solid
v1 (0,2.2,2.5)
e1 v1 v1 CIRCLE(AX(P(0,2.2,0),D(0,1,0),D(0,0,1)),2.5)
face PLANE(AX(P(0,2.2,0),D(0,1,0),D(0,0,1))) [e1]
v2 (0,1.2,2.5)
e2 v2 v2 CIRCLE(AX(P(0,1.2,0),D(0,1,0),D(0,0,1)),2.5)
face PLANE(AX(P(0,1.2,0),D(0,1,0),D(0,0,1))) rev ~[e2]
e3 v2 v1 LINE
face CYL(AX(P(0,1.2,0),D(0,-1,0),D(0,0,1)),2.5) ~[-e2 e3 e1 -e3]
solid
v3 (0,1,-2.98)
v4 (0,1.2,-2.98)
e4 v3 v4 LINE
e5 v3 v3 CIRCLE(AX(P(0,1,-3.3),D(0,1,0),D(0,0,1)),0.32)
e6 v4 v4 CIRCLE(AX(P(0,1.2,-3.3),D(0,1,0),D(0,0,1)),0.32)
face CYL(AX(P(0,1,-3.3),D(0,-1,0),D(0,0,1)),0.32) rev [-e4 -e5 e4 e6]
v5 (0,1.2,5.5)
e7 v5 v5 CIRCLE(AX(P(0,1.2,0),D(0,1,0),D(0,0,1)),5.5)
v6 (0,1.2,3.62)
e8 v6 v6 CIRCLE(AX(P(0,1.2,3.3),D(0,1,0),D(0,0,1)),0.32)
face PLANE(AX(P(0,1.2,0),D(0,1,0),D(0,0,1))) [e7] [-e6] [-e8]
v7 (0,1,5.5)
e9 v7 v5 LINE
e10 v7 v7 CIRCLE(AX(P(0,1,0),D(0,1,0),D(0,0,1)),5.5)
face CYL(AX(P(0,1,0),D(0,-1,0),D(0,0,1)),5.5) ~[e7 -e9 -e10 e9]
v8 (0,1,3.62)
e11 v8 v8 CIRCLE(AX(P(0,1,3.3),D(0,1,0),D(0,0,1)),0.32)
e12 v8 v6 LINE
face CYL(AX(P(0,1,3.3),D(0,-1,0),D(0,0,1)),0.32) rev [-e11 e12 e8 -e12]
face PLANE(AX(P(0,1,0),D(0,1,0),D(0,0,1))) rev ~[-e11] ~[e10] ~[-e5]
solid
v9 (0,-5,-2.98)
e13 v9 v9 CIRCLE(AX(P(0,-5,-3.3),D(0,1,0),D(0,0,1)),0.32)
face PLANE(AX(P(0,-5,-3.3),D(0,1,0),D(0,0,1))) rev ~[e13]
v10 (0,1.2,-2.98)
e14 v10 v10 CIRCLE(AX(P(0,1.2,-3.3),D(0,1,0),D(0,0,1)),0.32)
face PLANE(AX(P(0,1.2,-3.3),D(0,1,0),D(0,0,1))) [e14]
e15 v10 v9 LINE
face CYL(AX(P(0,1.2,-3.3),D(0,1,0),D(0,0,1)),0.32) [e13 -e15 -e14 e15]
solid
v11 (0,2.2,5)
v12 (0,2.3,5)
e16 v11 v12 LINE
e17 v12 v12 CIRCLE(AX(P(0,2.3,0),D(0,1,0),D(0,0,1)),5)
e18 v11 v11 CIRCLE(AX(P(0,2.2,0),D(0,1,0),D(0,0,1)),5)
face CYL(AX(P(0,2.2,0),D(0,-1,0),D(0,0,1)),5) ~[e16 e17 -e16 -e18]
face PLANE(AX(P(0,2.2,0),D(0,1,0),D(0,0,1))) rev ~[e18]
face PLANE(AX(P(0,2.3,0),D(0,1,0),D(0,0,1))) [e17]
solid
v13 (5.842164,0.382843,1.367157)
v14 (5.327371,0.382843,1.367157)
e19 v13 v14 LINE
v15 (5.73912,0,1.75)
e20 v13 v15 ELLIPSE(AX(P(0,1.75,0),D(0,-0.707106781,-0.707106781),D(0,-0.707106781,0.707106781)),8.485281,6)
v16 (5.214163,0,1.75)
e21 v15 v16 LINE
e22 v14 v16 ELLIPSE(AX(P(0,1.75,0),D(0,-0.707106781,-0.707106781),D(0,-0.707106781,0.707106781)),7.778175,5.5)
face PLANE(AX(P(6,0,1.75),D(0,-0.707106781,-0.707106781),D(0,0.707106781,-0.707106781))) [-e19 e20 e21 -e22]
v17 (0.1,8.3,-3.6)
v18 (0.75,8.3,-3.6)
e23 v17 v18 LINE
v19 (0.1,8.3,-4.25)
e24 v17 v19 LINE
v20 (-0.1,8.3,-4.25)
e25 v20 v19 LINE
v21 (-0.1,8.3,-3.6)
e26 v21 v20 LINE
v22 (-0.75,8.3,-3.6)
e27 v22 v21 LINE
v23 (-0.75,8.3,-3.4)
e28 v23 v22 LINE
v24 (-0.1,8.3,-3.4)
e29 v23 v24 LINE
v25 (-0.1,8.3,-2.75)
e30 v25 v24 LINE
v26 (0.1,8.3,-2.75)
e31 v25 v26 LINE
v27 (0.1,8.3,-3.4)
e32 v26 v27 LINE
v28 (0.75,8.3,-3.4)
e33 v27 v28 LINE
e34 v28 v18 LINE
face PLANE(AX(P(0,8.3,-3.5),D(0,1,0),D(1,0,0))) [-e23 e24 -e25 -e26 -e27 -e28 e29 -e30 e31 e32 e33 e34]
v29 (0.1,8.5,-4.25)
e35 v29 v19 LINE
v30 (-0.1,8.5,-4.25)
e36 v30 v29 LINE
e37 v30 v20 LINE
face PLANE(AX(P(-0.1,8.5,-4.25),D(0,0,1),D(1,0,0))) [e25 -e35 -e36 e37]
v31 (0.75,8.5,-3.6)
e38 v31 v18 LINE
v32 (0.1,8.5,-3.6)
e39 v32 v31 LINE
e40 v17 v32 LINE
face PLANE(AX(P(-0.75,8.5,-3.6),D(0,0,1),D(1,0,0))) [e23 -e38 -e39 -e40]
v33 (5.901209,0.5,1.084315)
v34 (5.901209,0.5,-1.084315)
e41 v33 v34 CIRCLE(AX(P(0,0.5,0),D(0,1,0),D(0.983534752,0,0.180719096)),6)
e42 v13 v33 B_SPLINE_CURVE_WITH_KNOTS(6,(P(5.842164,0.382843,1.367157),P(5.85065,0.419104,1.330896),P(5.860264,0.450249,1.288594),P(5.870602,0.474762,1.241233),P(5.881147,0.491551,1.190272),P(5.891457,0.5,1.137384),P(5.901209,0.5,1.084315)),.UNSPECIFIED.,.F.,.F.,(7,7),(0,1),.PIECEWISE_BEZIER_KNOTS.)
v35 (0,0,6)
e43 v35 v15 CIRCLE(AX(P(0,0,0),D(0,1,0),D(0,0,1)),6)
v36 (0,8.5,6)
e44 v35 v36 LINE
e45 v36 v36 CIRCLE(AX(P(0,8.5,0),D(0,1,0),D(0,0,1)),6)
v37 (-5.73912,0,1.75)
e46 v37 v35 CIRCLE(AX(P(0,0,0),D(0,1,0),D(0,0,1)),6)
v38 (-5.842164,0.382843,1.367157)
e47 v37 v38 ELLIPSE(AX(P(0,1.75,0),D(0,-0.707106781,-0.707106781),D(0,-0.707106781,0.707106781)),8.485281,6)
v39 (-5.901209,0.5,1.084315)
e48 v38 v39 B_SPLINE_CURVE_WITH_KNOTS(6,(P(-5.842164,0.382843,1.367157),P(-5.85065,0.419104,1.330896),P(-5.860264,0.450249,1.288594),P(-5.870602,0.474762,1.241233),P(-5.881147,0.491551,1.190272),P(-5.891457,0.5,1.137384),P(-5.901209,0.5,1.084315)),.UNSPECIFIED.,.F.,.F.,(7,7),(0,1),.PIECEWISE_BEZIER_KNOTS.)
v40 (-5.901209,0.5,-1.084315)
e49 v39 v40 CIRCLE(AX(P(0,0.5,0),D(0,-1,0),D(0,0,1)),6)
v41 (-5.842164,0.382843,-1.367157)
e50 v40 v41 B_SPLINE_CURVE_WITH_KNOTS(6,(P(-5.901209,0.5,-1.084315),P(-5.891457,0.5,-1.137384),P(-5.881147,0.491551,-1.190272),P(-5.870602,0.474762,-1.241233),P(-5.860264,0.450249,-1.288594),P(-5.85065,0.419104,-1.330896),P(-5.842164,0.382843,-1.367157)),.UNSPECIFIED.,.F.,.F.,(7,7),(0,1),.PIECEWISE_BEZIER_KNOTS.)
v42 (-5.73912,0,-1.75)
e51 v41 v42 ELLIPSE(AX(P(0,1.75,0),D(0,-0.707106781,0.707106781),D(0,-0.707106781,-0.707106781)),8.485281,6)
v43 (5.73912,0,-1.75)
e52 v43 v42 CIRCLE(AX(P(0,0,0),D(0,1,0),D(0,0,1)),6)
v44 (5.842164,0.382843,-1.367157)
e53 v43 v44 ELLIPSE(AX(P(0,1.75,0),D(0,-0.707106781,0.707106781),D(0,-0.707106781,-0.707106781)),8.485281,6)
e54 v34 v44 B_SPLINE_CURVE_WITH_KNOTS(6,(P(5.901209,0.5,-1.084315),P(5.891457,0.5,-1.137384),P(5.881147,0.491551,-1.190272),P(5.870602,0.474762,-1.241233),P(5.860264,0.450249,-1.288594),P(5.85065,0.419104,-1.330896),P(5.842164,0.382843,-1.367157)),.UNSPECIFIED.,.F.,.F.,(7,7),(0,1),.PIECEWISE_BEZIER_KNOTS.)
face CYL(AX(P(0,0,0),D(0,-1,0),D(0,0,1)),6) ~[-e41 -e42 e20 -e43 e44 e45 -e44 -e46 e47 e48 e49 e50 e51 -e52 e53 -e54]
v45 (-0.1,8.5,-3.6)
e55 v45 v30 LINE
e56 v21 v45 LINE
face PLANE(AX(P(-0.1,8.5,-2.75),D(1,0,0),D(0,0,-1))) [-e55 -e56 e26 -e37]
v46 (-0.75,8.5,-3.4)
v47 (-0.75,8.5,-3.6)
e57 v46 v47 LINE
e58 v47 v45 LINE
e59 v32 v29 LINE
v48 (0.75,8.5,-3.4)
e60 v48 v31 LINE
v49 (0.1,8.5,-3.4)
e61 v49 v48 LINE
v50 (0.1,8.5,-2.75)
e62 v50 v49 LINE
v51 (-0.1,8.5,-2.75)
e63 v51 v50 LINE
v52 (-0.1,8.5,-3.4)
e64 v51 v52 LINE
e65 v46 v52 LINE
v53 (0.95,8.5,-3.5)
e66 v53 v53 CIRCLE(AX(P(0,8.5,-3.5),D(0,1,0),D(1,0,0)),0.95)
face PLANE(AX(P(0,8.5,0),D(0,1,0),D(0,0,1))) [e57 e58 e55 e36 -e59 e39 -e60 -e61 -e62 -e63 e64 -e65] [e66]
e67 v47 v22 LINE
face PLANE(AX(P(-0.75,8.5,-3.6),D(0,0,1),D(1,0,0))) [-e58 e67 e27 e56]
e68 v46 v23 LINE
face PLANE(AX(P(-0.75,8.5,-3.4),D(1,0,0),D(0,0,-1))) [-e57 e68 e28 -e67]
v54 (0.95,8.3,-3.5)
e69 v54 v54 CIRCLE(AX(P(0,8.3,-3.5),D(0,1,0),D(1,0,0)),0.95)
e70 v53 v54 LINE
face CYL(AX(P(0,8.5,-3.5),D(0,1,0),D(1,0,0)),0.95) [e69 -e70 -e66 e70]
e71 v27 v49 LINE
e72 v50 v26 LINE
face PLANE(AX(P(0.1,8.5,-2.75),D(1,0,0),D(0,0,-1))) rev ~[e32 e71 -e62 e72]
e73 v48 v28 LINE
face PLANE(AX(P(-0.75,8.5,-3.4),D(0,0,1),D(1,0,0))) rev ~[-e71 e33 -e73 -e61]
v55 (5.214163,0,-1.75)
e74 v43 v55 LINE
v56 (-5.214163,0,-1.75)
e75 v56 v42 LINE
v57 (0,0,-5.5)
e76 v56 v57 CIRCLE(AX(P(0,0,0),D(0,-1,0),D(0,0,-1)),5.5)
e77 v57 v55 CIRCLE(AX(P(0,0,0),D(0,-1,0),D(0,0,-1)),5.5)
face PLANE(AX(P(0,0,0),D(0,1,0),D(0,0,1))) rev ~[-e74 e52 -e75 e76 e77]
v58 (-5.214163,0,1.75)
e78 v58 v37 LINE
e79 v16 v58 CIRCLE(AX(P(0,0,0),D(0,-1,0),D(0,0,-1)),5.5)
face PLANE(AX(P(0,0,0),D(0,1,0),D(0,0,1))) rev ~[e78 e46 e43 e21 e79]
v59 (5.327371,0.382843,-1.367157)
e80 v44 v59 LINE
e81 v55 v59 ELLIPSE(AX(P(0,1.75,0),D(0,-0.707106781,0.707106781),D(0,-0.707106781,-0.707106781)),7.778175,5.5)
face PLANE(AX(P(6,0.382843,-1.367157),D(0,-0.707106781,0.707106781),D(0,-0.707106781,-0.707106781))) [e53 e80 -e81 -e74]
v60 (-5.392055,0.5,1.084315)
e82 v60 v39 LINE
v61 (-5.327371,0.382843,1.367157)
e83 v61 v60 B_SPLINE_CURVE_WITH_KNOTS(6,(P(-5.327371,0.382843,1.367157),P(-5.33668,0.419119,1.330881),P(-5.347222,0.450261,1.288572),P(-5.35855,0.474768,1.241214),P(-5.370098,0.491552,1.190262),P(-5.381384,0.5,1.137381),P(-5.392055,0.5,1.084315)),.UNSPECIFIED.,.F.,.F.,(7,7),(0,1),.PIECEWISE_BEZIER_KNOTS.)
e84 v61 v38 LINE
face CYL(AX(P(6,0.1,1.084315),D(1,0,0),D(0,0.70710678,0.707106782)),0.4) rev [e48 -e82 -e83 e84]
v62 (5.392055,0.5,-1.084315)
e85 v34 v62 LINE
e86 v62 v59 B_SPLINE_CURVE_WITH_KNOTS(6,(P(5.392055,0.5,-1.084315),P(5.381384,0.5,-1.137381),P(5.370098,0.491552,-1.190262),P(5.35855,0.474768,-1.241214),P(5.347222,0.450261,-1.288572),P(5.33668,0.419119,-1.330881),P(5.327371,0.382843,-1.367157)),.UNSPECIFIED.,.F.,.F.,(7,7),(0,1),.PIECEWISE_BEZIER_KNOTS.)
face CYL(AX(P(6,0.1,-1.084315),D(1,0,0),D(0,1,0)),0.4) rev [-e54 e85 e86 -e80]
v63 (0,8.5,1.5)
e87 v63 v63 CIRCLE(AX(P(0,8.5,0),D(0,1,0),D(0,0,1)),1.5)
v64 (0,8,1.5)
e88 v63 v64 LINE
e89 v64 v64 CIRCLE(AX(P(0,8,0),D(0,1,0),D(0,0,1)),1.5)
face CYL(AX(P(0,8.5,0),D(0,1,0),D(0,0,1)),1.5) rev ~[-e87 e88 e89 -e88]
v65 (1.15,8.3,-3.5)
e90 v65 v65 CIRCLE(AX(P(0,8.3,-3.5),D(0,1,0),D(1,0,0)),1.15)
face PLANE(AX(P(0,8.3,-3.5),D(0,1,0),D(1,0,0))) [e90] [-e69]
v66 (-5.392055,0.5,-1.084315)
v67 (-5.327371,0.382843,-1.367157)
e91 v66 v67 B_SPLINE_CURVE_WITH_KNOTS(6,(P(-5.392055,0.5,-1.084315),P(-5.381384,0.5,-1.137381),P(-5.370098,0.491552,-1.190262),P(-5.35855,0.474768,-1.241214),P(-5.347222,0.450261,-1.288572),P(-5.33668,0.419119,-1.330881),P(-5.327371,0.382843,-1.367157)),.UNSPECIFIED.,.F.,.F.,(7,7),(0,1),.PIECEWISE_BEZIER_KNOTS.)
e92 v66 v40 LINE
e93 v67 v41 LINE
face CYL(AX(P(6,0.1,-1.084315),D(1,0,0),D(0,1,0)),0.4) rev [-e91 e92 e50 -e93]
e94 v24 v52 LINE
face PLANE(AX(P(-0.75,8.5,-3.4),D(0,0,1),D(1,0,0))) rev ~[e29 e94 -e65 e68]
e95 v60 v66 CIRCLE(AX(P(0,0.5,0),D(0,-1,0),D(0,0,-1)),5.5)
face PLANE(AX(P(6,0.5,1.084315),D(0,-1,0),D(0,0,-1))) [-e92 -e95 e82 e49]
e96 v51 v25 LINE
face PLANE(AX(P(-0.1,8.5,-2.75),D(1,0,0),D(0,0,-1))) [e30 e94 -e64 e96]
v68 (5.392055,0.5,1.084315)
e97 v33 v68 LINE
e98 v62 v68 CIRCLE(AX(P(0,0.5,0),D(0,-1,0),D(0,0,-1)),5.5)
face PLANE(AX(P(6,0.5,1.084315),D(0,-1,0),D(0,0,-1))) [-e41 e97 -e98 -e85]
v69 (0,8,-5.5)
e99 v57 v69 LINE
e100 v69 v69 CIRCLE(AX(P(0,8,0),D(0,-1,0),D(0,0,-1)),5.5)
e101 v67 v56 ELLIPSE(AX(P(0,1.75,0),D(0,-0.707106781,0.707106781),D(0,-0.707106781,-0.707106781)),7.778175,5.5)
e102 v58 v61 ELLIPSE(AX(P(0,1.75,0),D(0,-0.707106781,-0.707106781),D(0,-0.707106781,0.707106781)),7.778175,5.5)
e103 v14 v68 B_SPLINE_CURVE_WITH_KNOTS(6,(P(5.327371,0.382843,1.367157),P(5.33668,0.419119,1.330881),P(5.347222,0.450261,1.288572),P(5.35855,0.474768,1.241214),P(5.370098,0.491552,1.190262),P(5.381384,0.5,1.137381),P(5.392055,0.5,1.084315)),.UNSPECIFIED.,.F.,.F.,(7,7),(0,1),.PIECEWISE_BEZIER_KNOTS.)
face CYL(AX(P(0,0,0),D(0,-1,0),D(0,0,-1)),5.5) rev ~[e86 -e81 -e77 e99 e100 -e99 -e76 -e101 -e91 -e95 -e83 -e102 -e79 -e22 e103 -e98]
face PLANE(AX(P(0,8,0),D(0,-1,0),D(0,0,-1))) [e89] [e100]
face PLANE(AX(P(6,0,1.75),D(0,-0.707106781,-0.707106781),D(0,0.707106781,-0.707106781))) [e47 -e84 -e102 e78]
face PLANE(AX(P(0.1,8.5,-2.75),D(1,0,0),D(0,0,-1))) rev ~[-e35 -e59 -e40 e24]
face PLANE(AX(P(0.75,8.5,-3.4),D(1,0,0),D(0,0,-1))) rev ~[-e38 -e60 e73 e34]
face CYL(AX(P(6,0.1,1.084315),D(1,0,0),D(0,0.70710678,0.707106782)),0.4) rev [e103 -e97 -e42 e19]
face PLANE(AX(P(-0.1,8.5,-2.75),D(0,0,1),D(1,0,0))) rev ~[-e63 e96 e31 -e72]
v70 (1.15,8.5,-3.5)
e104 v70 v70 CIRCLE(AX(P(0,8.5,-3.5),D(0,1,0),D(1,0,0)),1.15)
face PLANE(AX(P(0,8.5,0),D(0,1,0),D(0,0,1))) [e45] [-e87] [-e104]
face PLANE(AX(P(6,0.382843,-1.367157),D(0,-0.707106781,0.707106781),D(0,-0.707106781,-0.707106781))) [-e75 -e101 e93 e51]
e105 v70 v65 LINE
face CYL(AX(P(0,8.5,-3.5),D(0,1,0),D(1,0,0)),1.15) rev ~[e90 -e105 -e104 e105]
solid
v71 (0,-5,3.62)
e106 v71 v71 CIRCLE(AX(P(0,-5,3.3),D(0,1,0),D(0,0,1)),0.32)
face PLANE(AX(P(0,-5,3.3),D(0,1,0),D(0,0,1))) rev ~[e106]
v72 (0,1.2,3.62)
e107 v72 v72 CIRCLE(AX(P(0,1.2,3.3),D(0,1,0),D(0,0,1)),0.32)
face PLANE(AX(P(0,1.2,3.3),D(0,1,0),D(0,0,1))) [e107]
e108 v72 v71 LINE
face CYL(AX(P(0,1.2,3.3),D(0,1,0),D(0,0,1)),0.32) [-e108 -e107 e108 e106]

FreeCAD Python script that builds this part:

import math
import FreeCAD as App
import Part
import Sketcher

V = App.Vector
Q = App.Units.Quantity


def add_polygon(sketch, points):
    """Adds a closed chain of lines whose ends are joined by coincident constraints."""
    first, n = sketch.GeometryCount, len(points)
    for a, b in zip(points, points[1:] + points[:1]):
        sketch.addGeometry(Part.LineSegment(App.Vector(*a, 0), App.Vector(*b, 0)), False)
    for i in range(n):
        sketch.addConstraint(Sketcher.Constraint("Coincident", first + i, 2, first + (i + 1) % n, 1))

doc = App.newDocument("Part")
body = doc.addObject("PartDesign::Body", "Body")

# Sketch on XZ plane
sketch1 = doc.addObject("Sketcher::SketchObject", "Sketch")
body.addObject(sketch1)
sketch1.AttachmentSupport = (doc.XZ_Plane, [""])
sketch1.MapMode = "FlatFace"
sketch1.addGeometry(Part.Circle(V(0, 0, 0), V(0, 0, 1), 6), False)
sketch1.addConstraint([
    Sketcher.Constraint("Coincident", 0, 3, -1, 1),
    Sketcher.Constraint("Diameter", 0, Q("12 mm")),
])
pad1 = doc.addObject("PartDesign::Pad", "Pad")
body.addObject(pad1)
pad1.Profile = sketch1
pad1.Length = 8.5
pad1.Reversed = True

# Sketch on XZ plane
sketch2 = doc.addObject("Sketcher::SketchObject", "Sketch001")
body.addObject(sketch2)
sketch2.AttachmentSupport = (doc.XZ_Plane, [""])
sketch2.MapMode = "FlatFace"
sketch2.addGeometry(Part.Circle(V(0, 0, 0), V(0, 0, 1), 6), False)
sketch2.addConstraint([
    Sketcher.Constraint("Coincident", 0, 3, -1, 1),
    Sketcher.Constraint("Diameter", 0, Q("11 mm")),
])
pocket1 = doc.addObject("PartDesign::Pocket", "Pocket")
body.addObject(pocket1)
pocket1.Profile = sketch2
pocket1.Length = 8

# Sketch on XZ plane
sketch3 = doc.addObject("Sketcher::SketchObject", "Sketch002")
body.addObject(sketch3)
sketch3.AttachmentSupport = (doc.XZ_Plane, [""])
sketch3.MapMode = "FlatFace"
sketch3.AttachmentOffset = App.Placement(V(0, 0, -8.5), App.Rotation())
sketch3.addGeometry(Part.Circle(V(0, 0, 0), V(0, 0, 1), 1.5), False)
sketch3.addConstraint([
    Sketcher.Constraint("Coincident", 0, 3, -1, 1),
    Sketcher.Constraint("Diameter", 0, Q("3 mm")),
])
pocket2 = doc.addObject("PartDesign::Pocket", "Pocket001")
body.addObject(pocket2)
pocket2.Profile = sketch3
pocket2.Type = "UpToFirst"
pocket2.Reversed = True

# Sketch on XZ plane
sketch4 = doc.addObject("Sketcher::SketchObject", "Sketch003")
body.addObject(sketch4)
sketch4.AttachmentSupport = (doc.XZ_Plane, [""])
sketch4.MapMode = "FlatFace"
sketch4.AttachmentOffset = App.Placement(V(0, 0, -8.5), App.Rotation())
sketch4.addGeometry(Part.Circle(V(0, -3.5, 0), V(0, 0, 1), 1.15), False)  # 0
sketch4.addGeometry(Part.Circle(V(0, -3.5, 0), V(0, 0, 1), 0.95), False)  # 1
add_polygon(sketch4, [(-0.75, -3.6), (-0.75, -3.4), (-0.1, -3.4), (-0.1, -2.75), (0.1, -2.75), (0.1, -3.4), (0.75, -3.4), (0.75, -3.6), (0.1, -3.6), (0.1, -4.25), (-0.1, -4.25), (-0.1, -3.6)])  # lines 2-13
sketch4.addConstraint([
    Sketcher.Constraint("Vertical", 2),
    Sketcher.Constraint("Horizontal", 3),
    Sketcher.Constraint("Vertical", 4),
    Sketcher.Constraint("Horizontal", 5),
    Sketcher.Constraint("Vertical", 6),
    Sketcher.Constraint("Horizontal", 7),
    Sketcher.Constraint("Vertical", 8),
    Sketcher.Constraint("Horizontal", 9),
    Sketcher.Constraint("Vertical", 10),
    Sketcher.Constraint("Horizontal", 11),
    Sketcher.Constraint("Vertical", 12),
    Sketcher.Constraint("Horizontal", 13),
    Sketcher.Constraint("Coincident", 1, 3, 0, 3),
    Sketcher.Constraint("Symmetric", 3, 2, 6, 2, -2),
    Sketcher.Constraint("Symmetric", 9, 2, 12, 2, -2),
    Sketcher.Constraint("PointOnObject", 0, 3, -2),
    Sketcher.Constraint("Vertical", 6, 2, 9, 2),
    Sketcher.Constraint("Equal", 3, 7),
    Sketcher.Constraint("Equal", 11, 2),
    Sketcher.Constraint("Equal", 13, 4),
    Sketcher.Constraint("Equal", 6, 10),
    Sketcher.Constraint("Diameter", 0, Q("2.3 mm")),
    Sketcher.Constraint("Diameter", 1, Q("1.9 mm")),
    Sketcher.Constraint("DistanceX", 5, 1, 5, 2, Q("0.2 mm")),
    Sketcher.Constraint("DistanceX", 3, 1, 3, 2, Q("0.65 mm")),
    Sketcher.Constraint("DistanceY", 0, 3, -1, 1, Q("3.5 mm")),
    Sketcher.Constraint("DistanceY", 2, 2, -1, 1, Q("3.4 mm")),
])
pocket3 = doc.addObject("PartDesign::Pocket", "Pocket002")
body.addObject(pocket3)
pocket3.Profile = sketch4
pocket3.Length = 0.2
pocket3.Reversed = True

# Sketch on YZ plane
sketch5 = doc.addObject("Sketcher::SketchObject", "Sketch004")
body.addObject(sketch5)
sketch5.AttachmentSupport = (doc.YZ_Plane, [""])
sketch5.MapMode = "FlatFace"
sketch5.AttachmentOffset = App.Placement(V(0, 0, 6), App.Rotation())
sketch5.addGeometry([
    Part.LineSegment(V(0.5, -1.08, 0), V(0.5, 1.08, 0)),  # 0
    Part.ArcOfCircle(Part.Circle(V(0.1, 1.08, 0), V(0, 0, 1), 0.4), math.radians(0), math.radians(45)),  # 1
    Part.LineSegment(V(0.38, 1.37, 0), V(0, 1.75, 0)),  # 2
    Part.LineSegment(V(0, 1.75, 0), V(0, -1.75, 0)),  # 3
    Part.LineSegment(V(0, -1.75, 0), V(0.38, -1.37, 0)),  # 4
    Part.ArcOfCircle(Part.Circle(V(0.1, -1.08, 0), V(0, 0, 1), 0.4), math.radians(-45), math.radians(0)),  # 5
], False)
sketch5.addConstraint([
    Sketcher.Constraint("Tangent", 0, 2, 1, 1),
    Sketcher.Constraint("Tangent", 1, 2, 2, 1),
    Sketcher.Constraint("Coincident", 2, 2, 3, 1),
    Sketcher.Constraint("Coincident", 3, 2, 4, 1),
    Sketcher.Constraint("Tangent", 4, 2, 5, 1),
    Sketcher.Constraint("Tangent", 5, 2, 0, 1),
    Sketcher.Constraint("Vertical", 0),
    Sketcher.Constraint("Vertical", 3),
    Sketcher.Constraint("Equal", 1, 5),
    Sketcher.Constraint("Symmetric", 2, 2, 3, 2, -1, 1),
    Sketcher.Constraint("Perpendicular", 2, 4),
    Sketcher.Constraint("Vertical", 1, 2, 4, 2),
    Sketcher.Constraint("Radius", 1, Q("0.4 mm")),
    Sketcher.Constraint("DistanceY", 3, 2, 3, 1, Q("3.5 mm")),
    Sketcher.Constraint("DistanceX", -1, 1, 1, 3, Q("0.1 mm")),
])
pocket4 = doc.addObject("PartDesign::Pocket", "Pocket003")
body.addObject(pocket4)
pocket4.Profile = sketch5
pocket4.Type = "ThroughAll"
body2 = doc.addObject("PartDesign::Body", "Body001")

# Sketch on XZ plane
sketch6 = doc.addObject("Sketcher::SketchObject", "Sketch005")
body2.addObject(sketch6)
sketch6.AttachmentSupport = (doc.getObject("XZ_Plane001"), [""])
sketch6.MapMode = "FlatFace"
sketch6.AttachmentOffset = App.Placement(V(0, 0, -1), App.Rotation())
sketch6.addGeometry([
    Part.Circle(V(0, 0, 0), V(0, 0, 1), 5.5),
    Part.Circle(V(0, -3.3, 0), V(0, 0, 1), 0.32),
    Part.Circle(V(0, 3.3, 0), V(0, 0, 1), 0.32),
], False)
sketch6.addConstraint([
    Sketcher.Constraint("Coincident", 0, 3, -1, 1),
    Sketcher.Constraint("Equal", 1, 2),
    Sketcher.Constraint("Symmetric", 1, 3, 2, 3, -1, 1),
    Sketcher.Constraint("PointOnObject", 1, 3, -2),
    Sketcher.Constraint("Diameter", 0, Q("11 mm")),
    Sketcher.Constraint("Diameter", 1, Q("0.64 mm")),
    Sketcher.Constraint("DistanceY", 1, 3, -1, 1, Q("3.3 mm")),
])
pad2 = doc.addObject("PartDesign::Pad", "Pad001")
body2.addObject(pad2)
pad2.Profile = sketch6
pad2.Length = 0.2
pad2.Reversed = True
body3 = doc.addObject("PartDesign::Body", "Body002")

# Sketch on XZ plane
sketch7 = doc.addObject("Sketcher::SketchObject", "Sketch006")
body3.addObject(sketch7)
sketch7.AttachmentSupport = (doc.getObject("XZ_Plane002"), [""])
sketch7.MapMode = "FlatFace"
sketch7.AttachmentOffset = App.Placement(V(0, 0, -1.2), App.Rotation())
sketch7.addGeometry(Part.Circle(V(0, -3.3, 0), V(0, 0, 1), 0.32), False)
sketch7.addConstraint([
    Sketcher.Constraint("PointOnObject", 0, 3, -2),
    Sketcher.Constraint("Diameter", 0, Q("0.64 mm")),
    Sketcher.Constraint("DistanceY", 0, 3, -1, 1, Q("3.3 mm")),
])
pad3 = doc.addObject("PartDesign::Pad", "Pad002")
body3.addObject(pad3)
pad3.Profile = sketch7
pad3.Length = 6.2
body4 = doc.addObject("PartDesign::Body", "Body003")

# Sketch on XZ plane
sketch8 = doc.addObject("Sketcher::SketchObject", "Sketch007")
body4.addObject(sketch8)
sketch8.AttachmentSupport = (doc.getObject("XZ_Plane003"), [""])
sketch8.MapMode = "FlatFace"
sketch8.AttachmentOffset = App.Placement(V(0, 0, -1.2), App.Rotation())
sketch8.addGeometry(Part.Circle(V(0, 3.3, 0), V(0, 0, 1), 0.32), False)
sketch8.addConstraint([
    Sketcher.Constraint("PointOnObject", 0, 3, -2),
    Sketcher.Constraint("Diameter", 0, Q("0.64 mm")),
    Sketcher.Constraint("DistanceY", -1, 1, 0, 3, Q("3.3 mm")),
])
pad4 = doc.addObject("PartDesign::Pad", "Pad003")
body4.addObject(pad4)
pad4.Profile = sketch8
pad4.Length = 6.2
body5 = doc.addObject("PartDesign::Body", "Body004")

# Sketch on XZ plane
sketch9 = doc.addObject("Sketcher::SketchObject", "Sketch008")
body5.addObject(sketch9)
sketch9.AttachmentSupport = (doc.getObject("XZ_Plane004"), [""])
sketch9.MapMode = "FlatFace"
sketch9.AttachmentOffset = App.Placement(V(0, 0, -1.2), App.Rotation())
sketch9.addGeometry(Part.Circle(V(0, 0, 0), V(0, 0, 1), 2.5), False)
sketch9.addConstraint([
    Sketcher.Constraint("Coincident", 0, 3, -1, 1),
    Sketcher.Constraint("Diameter", 0, Q("5 mm")),
])
pad5 = doc.addObject("PartDesign::Pad", "Pad004")
body5.addObject(pad5)
pad5.Profile = sketch9
pad5.Length = 1
pad5.Reversed = True
body6 = doc.addObject("PartDesign::Body", "Body005")

# Sketch on XZ plane
sketch10 = doc.addObject("Sketcher::SketchObject", "Sketch009")
body6.addObject(sketch10)
sketch10.AttachmentSupport = (doc.getObject("XZ_Plane005"), [""])
sketch10.MapMode = "FlatFace"
sketch10.AttachmentOffset = App.Placement(V(0, 0, -2.2), App.Rotation())
sketch10.addGeometry(Part.Circle(V(0, 0, 0), V(0, 0, 1), 5), False)
sketch10.addConstraint([
    Sketcher.Constraint("Coincident", 0, 3, -1, 1),
    Sketcher.Constraint("Diameter", 0, Q("10 mm")),
])
pad6 = doc.addObject("PartDesign::Pad", "Pad005")
body6.addObject(pad6)
pad6.Profile = sketch10
pad6.Length = 0.1
pad6.Reversed = True

doc.recompute()
